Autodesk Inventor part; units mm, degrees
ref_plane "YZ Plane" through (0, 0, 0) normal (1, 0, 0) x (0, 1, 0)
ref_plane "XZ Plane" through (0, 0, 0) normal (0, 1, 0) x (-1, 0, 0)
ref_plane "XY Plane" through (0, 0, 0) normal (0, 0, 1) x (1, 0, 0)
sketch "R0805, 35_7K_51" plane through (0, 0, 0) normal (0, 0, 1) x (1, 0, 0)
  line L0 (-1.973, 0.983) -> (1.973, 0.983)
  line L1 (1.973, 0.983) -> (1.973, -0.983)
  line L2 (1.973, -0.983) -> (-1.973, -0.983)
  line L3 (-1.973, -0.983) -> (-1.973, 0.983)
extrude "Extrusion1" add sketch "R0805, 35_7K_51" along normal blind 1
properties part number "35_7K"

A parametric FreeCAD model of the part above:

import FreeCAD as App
import Part
import Sketcher

V = App.Vector
Q = App.Units.Quantity

doc = App.newDocument("Part")
body = doc.addObject("PartDesign::Body", "Body")

# Sketch on XY plane
sketch1 = body.newObject("Sketcher::SketchObject", "Sketch")
sketch1.AttachmentSupport = (doc.getObject("XY_Plane"), [""])
sketch1.MapMode = "FlatFace"
sketch1.addGeometry([
    Part.LineSegment(V(2, 1, 0), V(-2, 1, 0)),
    Part.LineSegment(V(-2, 1, 0), V(-2, -1, 0)),
    Part.LineSegment(V(-2, -1, 0), V(2, -1, 0)),
    Part.LineSegment(V(2, -1, 0), V(2, 1, 0)),
], False)
sketch1.addConstraint([
    Sketcher.Constraint("Coincident", 0, 2, 1, 1),
    Sketcher.Constraint("Coincident", 1, 2, 2, 1),
    Sketcher.Constraint("Coincident", 2, 2, 3, 1),
    Sketcher.Constraint("Coincident", 3, 2, 0, 1),
    Sketcher.Constraint("Horizontal", 0),
    Sketcher.Constraint("Vertical", 1),
    Sketcher.Constraint("Horizontal", 2),
    Sketcher.Constraint("Vertical", 3),
    Sketcher.Constraint("Symmetric", 0, 2, 2, 2, -1, 1),
    Sketcher.Constraint("DistanceX", 0, 2, 0, 1, Q("3.946 mm")),
    Sketcher.Constraint("DistanceY", 1, 2, 1, 1, Q("1.966 mm")),
])
pad1 = body.newObject("PartDesign::Pad", "Pad")
pad1.Profile = sketch1
pad1.Length = 1

doc.recompute()
